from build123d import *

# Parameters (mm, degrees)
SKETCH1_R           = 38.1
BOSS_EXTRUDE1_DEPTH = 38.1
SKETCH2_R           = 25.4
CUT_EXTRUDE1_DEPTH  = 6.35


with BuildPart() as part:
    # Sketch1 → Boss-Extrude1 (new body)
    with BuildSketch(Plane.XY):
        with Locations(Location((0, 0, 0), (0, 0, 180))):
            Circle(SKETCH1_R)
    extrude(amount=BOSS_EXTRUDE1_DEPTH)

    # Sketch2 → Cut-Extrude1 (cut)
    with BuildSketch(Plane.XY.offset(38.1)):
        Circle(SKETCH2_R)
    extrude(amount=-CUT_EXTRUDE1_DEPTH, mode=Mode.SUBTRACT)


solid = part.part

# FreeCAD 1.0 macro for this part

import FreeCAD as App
import Part
import Sketcher
from FreeCAD import Vector
Q = App.Units.Quantity

doc = App.newDocument("Part")
params = doc.addObject("Spreadsheet::Sheet", "Params")
for row, (alias, value) in enumerate([
    ("sketch1_diameter", "3 in"),
    ("pad1_length", "1.5 in"),
    ("sketch2_diameter", "2 in"),
    ("pocket1_length", "0.25 in"),
], start=1):
    params.set(f"A{row}", alias)
    params.set(f"B{row}", "=" + value)
    params.setAlias(f"B{row}", alias)

body = doc.addObject("PartDesign::Body", "Body")

# Sketch on XY plane
sketch1 = doc.addObject("Sketcher::SketchObject", "Sketch")
body.addObject(sketch1)
sketch1.AttachmentSupport = (doc.XY_Plane, [""])
sketch1.MapMode = "FlatFace"
sketch1.addGeometry(Part.Circle(Vector(0, 0, 0), Vector(0, 0, 1), 38), False)
sketch1.addConstraint([
    Sketcher.Constraint("Coincident", 0, 3, -1, 1),
    Sketcher.Constraint("Diameter", 0, Q("3 in")),
])
sketch1.setExpression("Constraints[1]", "Params.sketch1_diameter")
pad1 = doc.addObject("PartDesign::Pad", "Pad")
body.addObject(pad1)
pad1.Profile = sketch1
pad1.setExpression("Length", "Params.pad1_length")

# Sketch on XY plane
sketch2 = doc.addObject("Sketcher::SketchObject", "Sketch001")
body.addObject(sketch2)
sketch2.AttachmentSupport = (doc.XY_Plane, [""])
sketch2.MapMode = "FlatFace"
sketch2.AttachmentOffset = App.Placement(Vector(0, 0, 1.5 * 25.4), App.Rotation())
sketch2.addGeometry(Part.Circle(Vector(0, 0, 0), Vector(0, 0, 1), 25), False)
sketch2.addConstraint([
    Sketcher.Constraint("Coincident", 0, 3, -1, 1),
    Sketcher.Constraint("Diameter", 0, Q("2 in")),
])
sketch2.setExpression("Constraints[1]", "Params.sketch2_diameter")
pocket1 = doc.addObject("PartDesign::Pocket", "Pocket")
body.addObject(pocket1)
pocket1.Profile = sketch2
pocket1.setExpression("Length", "Params.pocket1_length")

doc.recompute()
